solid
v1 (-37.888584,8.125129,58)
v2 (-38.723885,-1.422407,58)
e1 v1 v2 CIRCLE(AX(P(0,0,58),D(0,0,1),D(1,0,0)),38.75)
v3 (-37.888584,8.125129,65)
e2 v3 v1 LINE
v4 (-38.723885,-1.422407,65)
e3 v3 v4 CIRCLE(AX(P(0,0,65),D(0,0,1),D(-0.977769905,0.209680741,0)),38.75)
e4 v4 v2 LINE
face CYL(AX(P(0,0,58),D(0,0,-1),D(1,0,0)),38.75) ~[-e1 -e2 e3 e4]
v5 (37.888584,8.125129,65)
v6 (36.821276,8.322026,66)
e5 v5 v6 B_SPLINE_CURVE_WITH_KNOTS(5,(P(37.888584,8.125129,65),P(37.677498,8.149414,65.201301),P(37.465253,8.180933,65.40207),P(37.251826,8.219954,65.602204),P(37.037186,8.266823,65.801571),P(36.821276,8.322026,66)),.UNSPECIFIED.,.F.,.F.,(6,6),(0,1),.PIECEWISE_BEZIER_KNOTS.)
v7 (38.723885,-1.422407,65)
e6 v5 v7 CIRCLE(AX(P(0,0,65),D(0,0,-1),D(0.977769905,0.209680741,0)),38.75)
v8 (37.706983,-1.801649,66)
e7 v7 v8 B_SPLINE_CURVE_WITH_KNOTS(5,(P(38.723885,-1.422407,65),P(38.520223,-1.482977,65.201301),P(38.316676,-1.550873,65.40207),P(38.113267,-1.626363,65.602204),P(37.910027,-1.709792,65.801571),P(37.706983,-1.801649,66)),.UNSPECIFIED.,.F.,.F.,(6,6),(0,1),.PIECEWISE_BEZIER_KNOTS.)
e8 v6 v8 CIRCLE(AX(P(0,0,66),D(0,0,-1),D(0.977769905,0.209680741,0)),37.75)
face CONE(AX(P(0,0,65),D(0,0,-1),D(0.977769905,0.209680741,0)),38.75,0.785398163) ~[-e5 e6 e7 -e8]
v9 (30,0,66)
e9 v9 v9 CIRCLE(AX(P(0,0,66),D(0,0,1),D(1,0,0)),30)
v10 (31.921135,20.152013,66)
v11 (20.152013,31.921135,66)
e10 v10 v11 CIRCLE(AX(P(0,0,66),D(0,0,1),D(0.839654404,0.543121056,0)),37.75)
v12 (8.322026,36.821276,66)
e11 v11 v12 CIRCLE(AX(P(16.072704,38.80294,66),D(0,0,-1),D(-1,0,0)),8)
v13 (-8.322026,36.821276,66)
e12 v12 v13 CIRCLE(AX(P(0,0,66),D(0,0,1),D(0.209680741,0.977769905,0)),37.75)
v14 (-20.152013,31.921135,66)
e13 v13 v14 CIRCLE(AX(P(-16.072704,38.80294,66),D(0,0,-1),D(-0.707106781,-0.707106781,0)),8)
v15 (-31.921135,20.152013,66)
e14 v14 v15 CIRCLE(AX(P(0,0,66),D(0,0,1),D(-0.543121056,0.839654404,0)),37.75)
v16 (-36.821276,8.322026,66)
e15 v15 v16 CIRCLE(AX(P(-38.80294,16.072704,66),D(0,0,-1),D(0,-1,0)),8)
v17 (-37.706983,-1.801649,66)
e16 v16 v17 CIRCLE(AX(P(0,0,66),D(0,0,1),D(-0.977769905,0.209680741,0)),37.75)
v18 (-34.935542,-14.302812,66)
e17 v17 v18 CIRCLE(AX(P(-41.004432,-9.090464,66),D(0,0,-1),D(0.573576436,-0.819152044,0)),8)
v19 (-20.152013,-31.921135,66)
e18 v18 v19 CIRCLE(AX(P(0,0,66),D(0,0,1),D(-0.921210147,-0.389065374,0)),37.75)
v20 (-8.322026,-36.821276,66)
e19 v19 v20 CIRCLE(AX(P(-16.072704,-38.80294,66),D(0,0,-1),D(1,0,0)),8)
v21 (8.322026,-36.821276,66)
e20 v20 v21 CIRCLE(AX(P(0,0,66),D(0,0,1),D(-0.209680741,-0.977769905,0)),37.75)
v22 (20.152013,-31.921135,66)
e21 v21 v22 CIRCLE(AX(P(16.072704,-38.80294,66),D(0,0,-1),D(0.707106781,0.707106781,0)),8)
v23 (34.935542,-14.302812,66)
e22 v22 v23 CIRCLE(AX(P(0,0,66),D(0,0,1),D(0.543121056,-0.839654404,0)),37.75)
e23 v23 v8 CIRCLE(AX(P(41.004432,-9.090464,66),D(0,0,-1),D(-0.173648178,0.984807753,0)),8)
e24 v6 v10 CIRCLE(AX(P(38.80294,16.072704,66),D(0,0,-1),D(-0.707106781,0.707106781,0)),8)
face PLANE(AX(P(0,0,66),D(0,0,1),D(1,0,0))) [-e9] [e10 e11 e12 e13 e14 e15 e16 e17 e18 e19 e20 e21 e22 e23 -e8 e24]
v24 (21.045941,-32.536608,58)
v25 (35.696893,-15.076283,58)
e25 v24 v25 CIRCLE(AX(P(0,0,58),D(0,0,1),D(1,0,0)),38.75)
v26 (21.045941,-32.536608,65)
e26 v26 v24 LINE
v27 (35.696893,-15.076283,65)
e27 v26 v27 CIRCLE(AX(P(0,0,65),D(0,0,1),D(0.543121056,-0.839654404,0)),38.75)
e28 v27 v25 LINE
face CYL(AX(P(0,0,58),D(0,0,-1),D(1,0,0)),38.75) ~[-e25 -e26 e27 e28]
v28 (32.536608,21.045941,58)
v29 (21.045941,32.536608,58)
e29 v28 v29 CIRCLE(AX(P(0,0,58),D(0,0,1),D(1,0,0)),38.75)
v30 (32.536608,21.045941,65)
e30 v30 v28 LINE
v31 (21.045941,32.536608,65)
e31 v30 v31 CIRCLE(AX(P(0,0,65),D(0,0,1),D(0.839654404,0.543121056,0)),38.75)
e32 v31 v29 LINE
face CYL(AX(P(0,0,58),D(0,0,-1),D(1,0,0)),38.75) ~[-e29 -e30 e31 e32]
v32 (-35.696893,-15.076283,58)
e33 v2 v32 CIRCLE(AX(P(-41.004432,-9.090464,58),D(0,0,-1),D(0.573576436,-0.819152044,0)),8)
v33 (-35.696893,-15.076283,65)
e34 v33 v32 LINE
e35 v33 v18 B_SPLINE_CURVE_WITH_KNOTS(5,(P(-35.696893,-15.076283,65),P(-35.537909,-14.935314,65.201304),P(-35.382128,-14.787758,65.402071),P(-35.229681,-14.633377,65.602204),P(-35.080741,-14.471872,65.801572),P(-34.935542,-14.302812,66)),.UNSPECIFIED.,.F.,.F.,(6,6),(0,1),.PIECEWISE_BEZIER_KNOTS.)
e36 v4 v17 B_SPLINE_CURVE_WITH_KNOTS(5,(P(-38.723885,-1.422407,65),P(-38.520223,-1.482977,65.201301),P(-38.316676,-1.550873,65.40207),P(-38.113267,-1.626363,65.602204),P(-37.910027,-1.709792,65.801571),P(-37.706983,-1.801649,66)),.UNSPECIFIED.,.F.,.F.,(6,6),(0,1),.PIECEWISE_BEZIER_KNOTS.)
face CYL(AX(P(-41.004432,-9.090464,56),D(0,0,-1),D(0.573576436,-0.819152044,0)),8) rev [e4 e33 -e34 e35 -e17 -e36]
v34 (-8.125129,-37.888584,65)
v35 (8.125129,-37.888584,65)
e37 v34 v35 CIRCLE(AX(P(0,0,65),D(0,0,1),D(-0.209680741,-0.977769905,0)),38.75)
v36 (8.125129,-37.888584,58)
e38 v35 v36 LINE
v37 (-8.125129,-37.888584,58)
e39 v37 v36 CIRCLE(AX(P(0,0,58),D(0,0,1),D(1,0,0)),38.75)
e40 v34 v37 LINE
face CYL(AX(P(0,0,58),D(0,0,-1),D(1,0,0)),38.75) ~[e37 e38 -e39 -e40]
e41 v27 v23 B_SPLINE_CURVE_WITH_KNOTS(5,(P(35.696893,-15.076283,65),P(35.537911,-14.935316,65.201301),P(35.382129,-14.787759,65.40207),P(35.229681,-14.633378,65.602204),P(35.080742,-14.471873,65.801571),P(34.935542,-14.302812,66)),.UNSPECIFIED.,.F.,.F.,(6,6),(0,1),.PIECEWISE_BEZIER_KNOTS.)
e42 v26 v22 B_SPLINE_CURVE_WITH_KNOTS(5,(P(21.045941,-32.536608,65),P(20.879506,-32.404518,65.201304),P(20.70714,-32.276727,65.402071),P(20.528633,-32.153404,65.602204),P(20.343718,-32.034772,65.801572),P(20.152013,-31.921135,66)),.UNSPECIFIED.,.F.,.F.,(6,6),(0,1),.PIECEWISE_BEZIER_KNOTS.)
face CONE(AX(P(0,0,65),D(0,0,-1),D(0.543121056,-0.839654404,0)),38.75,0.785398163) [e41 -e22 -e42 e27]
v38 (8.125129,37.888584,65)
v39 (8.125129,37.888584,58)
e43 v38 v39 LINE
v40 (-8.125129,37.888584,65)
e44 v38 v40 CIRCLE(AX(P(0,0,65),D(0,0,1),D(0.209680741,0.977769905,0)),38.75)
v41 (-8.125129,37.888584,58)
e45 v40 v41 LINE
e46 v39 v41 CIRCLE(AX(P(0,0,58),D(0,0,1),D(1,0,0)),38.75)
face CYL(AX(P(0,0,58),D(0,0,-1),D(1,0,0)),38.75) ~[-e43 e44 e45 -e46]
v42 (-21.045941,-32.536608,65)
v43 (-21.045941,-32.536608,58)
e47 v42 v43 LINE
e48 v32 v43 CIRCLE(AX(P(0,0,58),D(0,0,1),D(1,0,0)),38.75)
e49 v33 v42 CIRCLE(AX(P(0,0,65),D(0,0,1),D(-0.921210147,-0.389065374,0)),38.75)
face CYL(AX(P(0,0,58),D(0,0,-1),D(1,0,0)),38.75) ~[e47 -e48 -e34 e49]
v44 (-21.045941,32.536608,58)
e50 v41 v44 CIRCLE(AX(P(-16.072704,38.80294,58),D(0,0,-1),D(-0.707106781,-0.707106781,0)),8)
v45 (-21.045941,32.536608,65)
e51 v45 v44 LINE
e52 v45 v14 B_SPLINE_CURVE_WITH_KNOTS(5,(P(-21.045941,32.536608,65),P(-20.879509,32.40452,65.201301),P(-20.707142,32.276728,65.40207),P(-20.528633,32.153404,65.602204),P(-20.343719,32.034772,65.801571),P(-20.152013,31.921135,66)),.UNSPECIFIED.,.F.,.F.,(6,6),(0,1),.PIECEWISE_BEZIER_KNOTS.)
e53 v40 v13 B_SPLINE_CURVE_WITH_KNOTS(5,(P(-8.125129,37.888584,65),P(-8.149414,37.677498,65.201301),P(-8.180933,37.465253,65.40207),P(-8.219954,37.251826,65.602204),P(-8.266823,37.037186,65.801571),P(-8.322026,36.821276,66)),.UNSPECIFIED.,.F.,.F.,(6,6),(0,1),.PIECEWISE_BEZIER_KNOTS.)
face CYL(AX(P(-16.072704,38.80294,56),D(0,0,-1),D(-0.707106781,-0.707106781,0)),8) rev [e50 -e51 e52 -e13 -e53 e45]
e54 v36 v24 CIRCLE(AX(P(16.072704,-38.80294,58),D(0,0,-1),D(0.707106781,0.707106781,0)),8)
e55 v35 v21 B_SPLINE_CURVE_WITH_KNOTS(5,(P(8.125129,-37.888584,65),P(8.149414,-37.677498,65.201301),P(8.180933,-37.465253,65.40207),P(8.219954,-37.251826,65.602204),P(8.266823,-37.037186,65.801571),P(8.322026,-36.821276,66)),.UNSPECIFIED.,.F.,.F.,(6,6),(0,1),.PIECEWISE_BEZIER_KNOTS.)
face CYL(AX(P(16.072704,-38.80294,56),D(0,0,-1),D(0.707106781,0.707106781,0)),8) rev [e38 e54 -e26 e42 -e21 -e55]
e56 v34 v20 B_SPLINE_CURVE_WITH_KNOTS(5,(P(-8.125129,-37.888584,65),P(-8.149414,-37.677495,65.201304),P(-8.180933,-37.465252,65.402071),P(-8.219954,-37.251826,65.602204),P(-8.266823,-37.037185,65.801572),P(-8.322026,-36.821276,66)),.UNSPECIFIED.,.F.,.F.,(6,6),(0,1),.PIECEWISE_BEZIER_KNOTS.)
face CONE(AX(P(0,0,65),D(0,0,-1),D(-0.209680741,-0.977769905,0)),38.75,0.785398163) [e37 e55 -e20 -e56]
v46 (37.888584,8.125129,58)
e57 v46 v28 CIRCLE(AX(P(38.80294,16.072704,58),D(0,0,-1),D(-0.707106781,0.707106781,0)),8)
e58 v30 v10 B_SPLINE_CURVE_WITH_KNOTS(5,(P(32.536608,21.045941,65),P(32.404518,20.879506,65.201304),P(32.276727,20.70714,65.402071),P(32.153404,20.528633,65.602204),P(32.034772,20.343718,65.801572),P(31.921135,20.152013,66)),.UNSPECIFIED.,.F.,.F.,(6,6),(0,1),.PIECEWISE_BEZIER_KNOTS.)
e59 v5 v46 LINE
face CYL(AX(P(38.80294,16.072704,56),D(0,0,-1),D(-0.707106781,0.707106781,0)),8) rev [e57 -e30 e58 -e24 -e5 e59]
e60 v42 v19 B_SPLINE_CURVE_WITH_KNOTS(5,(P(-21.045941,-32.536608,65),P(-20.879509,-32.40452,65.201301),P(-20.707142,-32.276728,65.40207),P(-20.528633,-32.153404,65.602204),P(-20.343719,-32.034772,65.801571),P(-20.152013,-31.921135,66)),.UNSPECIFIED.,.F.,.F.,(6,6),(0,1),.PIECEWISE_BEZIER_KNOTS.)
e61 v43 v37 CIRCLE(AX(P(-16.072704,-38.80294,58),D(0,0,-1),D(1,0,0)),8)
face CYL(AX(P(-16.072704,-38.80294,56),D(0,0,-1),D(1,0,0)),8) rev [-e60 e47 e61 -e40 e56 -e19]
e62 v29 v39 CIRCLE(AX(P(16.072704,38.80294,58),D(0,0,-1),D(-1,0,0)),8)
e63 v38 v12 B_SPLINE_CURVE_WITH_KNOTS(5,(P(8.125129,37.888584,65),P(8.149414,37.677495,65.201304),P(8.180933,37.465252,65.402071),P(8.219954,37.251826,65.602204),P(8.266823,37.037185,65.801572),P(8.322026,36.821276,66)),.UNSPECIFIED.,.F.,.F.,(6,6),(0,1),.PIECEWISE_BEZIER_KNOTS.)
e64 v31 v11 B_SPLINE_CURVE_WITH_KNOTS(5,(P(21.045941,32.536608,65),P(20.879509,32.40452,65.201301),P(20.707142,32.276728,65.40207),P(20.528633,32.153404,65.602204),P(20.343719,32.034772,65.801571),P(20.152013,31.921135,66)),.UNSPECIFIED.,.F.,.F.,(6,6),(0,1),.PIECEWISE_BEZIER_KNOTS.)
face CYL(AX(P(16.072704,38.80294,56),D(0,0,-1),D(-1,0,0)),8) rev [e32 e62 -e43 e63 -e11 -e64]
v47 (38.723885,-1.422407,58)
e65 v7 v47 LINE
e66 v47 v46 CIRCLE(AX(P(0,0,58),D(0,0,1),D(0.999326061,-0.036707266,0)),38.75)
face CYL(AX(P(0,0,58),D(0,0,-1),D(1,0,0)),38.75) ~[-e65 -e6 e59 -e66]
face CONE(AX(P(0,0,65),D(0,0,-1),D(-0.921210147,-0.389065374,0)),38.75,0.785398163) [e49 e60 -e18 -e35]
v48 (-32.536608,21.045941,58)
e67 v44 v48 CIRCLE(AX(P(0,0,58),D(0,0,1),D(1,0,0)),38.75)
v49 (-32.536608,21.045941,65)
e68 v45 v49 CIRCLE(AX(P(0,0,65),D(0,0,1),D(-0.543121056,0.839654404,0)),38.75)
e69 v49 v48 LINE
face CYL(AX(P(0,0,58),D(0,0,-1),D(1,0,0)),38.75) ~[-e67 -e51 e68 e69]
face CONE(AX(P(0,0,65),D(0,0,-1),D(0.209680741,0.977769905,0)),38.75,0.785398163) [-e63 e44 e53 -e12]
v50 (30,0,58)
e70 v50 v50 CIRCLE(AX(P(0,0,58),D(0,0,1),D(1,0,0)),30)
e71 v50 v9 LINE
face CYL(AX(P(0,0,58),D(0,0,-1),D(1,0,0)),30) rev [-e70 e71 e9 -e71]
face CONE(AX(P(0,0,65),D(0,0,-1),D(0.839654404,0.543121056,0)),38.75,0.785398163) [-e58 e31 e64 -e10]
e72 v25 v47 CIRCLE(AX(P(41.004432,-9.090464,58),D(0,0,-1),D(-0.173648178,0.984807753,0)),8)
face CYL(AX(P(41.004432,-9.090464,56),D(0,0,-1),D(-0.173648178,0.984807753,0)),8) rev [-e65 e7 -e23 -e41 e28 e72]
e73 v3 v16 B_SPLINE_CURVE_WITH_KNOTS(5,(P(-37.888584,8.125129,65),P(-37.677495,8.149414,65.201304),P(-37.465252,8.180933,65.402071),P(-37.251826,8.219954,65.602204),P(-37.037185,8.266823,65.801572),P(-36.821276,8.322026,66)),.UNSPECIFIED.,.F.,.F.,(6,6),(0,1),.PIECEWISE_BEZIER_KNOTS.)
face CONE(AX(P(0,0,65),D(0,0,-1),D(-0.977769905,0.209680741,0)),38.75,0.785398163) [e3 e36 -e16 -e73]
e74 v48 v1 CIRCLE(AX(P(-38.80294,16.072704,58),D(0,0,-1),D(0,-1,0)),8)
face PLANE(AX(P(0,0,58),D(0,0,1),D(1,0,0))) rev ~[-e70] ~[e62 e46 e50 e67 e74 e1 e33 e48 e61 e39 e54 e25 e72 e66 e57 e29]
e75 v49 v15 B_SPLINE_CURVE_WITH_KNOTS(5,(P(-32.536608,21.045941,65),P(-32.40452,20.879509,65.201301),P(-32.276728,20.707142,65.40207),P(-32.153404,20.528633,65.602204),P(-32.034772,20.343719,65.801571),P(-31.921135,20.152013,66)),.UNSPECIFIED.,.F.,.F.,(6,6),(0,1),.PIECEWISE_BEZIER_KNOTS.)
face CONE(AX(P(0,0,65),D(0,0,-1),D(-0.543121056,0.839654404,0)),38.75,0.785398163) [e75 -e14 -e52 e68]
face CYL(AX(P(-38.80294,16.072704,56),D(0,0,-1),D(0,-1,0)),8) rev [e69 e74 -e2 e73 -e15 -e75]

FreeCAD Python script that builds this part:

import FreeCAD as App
import Part
import Sketcher

V = App.Vector


def edges_at(feature, points):
    """Names of the edges that pass closest to the given points."""
    edges = feature.Shape.Edges
    near = lambda p: min(range(len(edges)), key=lambda i: edges[i].distToShape(Part.Vertex(*p))[0])
    return sorted({f"Edge{near(p) + 1}" for p in points})

doc = App.newDocument("Part")
params = doc.addObject("Spreadsheet::Sheet", "Params")
for row, (alias, value) in enumerate([
    ("sketch1_diameter", "16 mm"),
    ("pad1_length", "20 mm"),
    ("sketch2_diameter", "16 mm"),
    ("pad2_length", "20 mm"),
    ("sketch3_diameter", "16 mm"),
    ("pad3_length", "20 mm"),
    ("sketch4_diameter", "16 mm"),
    ("pad4_length", "20 mm"),
    ("sketch5_diameter", "16 mm"),
    ("pad5_length", "20 mm"),
    ("sketch6_diameter", "16 mm"),
    ("pad6_length", "20 mm"),
    ("sketch7_diameter", "16 mm"),
    ("pad7_length", "20 mm"),
    ("sketch8_diameter", "16 mm"),
    ("pad8_length", "20 mm"),
    ("sketch9_diameter", "60 mm"),
    ("sketch9_diameter2", "77.5 mm"),
    ("pad9_length", "8 mm"),
    ("chamfer_size", "1 mm"),
], start=1):
    params.set(f"A{row}", alias)
    params.set(f"B{row}", "=" + value)
    params.setAlias(f"B{row}", alias)

body = doc.addObject("PartDesign::Body", "Body")

# Sketch on XY plane
sketch1 = body.newObject("Sketcher::SketchObject", "Sketch")
sketch1.AttachmentSupport = (doc.getObject("XY_Plane"), [""])
sketch1.MapMode = "FlatFace"
sketch1.addGeometry(Part.Circle(V(0, 0, 0), V(0, 0, 1), 8), False)
sketch1.addConstraint(Sketcher.Constraint("Coincident", 0, 3, -1, 1))
sketch1.addConstraint(Sketcher.Constraint("Diameter", 0, 16.0))
sketch1.setExpression("Constraints[1]", "Params.sketch1_diameter")
pad1 = body.newObject("PartDesign::Pad", "Pad")
pad1.Profile = sketch1
pad1.setExpression("Length", "Params.pad1_length")
body2 = doc.addObject("PartDesign::Body", "Body001")
doc.recompute()

body.Placement = App.Placement(V(41.004432, -9.090464, 0), App.Rotation(V(0, 0, 1), 100))
boolean = body2.newObject("PartDesign::Boolean", "Boolean")
boolean.Type = "Fuse"
boolean.addObjects([body])
body3 = doc.addObject("PartDesign::Body", "Body002")

# Sketch on XY plane
sketch2 = body3.newObject("Sketcher::SketchObject", "Sketch001")
sketch2.AttachmentSupport = (doc.getObject("XY_Plane002"), [""])
sketch2.MapMode = "FlatFace"
sketch2.addGeometry(Part.Circle(V(0, 0, 0), V(0, 0, 1), 8), False)
sketch2.addConstraint(Sketcher.Constraint("Coincident", 0, 3, -1, 1))
sketch2.addConstraint(Sketcher.Constraint("Diameter", 0, 16.0))
sketch2.setExpression("Constraints[1]", "Params.sketch2_diameter")
pad2 = body3.newObject("PartDesign::Pad", "Pad001")
pad2.Profile = sketch2
pad2.setExpression("Length", "Params.pad2_length")
body4 = doc.addObject("PartDesign::Body", "Body003")
doc.recompute()

body3.Placement = App.Placement(V(38.80294, 16.072704, 0), App.Rotation(V(0, 0, 1), 135))
boolean2 = body4.newObject("PartDesign::Boolean", "Boolean001")
boolean2.Type = "Fuse"
boolean2.addObjects([body3])
body5 = doc.addObject("PartDesign::Body", "Body004")

# Sketch on XY plane
sketch3 = body5.newObject("Sketcher::SketchObject", "Sketch002")
sketch3.AttachmentSupport = (doc.getObject("XY_Plane004"), [""])
sketch3.MapMode = "FlatFace"
sketch3.addGeometry(Part.Circle(V(16.072704, 38.80294, 0), V(0, 0, 1), 8), False)
sketch3.addConstraint(Sketcher.Constraint("Diameter", 0, 16.0))
sketch3.addConstraint(Sketcher.Constraint("DistanceY", -1, 1, 0, 3, 38.80294))
sketch3.addConstraint(Sketcher.Constraint("DistanceX", -1, 1, 0, 3, 16.072704))
sketch3.setExpression("Constraints[0]", "Params.sketch3_diameter")
pad3 = body5.newObject("PartDesign::Pad", "Pad002")
pad3.Profile = sketch3
pad3.setExpression("Length", "Params.pad3_length")
body6 = doc.addObject("PartDesign::Body", "Body005")

# Sketch on XY plane
sketch4 = body6.newObject("Sketcher::SketchObject", "Sketch003")
sketch4.AttachmentSupport = (doc.getObject("XY_Plane005"), [""])
sketch4.MapMode = "FlatFace"
sketch4.addGeometry(Part.Circle(V(0, 0, 0), V(0, 0, 1), 8), False)
sketch4.addConstraint(Sketcher.Constraint("Coincident", 0, 3, -1, 1))
sketch4.addConstraint(Sketcher.Constraint("Diameter", 0, 16.0))
sketch4.setExpression("Constraints[1]", "Params.sketch4_diameter")
pad4 = body6.newObject("PartDesign::Pad", "Pad003")
pad4.Profile = sketch4
pad4.setExpression("Length", "Params.pad4_length")
body7 = doc.addObject("PartDesign::Body", "Body006")
doc.recompute()

body6.Placement = App.Placement(V(-16.072704, 38.80294, 0), App.Rotation(V(0, 0, 1), 225))
boolean3 = body7.newObject("PartDesign::Boolean", "Boolean002")
boolean3.Type = "Fuse"
boolean3.addObjects([body6])
body8 = doc.addObject("PartDesign::Body", "Body007")

# Sketch on XY plane
sketch5 = body8.newObject("Sketcher::SketchObject", "Sketch004")
sketch5.AttachmentSupport = (doc.getObject("XY_Plane007"), [""])
sketch5.MapMode = "FlatFace"
sketch5.addGeometry(Part.Circle(V(-38.80294, 16.072704, 0), V(0, 0, 1), 8), False)
sketch5.addConstraint(Sketcher.Constraint("Diameter", 0, 16.0))
sketch5.addConstraint(Sketcher.Constraint("DistanceX", 0, 3, -1, 1, 38.80294))
sketch5.addConstraint(Sketcher.Constraint("DistanceY", -1, 1, 0, 3, 16.072704))
sketch5.setExpression("Constraints[0]", "Params.sketch5_diameter")
pad5 = body8.newObject("PartDesign::Pad", "Pad004")
pad5.Profile = sketch5
pad5.setExpression("Length", "Params.pad5_length")
body9 = doc.addObject("PartDesign::Body", "Body008")

# Sketch on XY plane
sketch6 = body9.newObject("Sketcher::SketchObject", "Sketch005")
sketch6.AttachmentSupport = (doc.getObject("XY_Plane008"), [""])
sketch6.MapMode = "FlatFace"
sketch6.addGeometry(Part.Circle(V(0, 0, 0), V(0, 0, 1), 8), False)
sketch6.addConstraint(Sketcher.Constraint("Coincident", 0, 3, -1, 1))
sketch6.addConstraint(Sketcher.Constraint("Diameter", 0, 16.0))
sketch6.setExpression("Constraints[1]", "Params.sketch6_diameter")
pad6 = body9.newObject("PartDesign::Pad", "Pad005")
pad6.Profile = sketch6
pad6.setExpression("Length", "Params.pad6_length")
body10 = doc.addObject("PartDesign::Body", "Body009")
doc.recompute()

body9.Placement = App.Placement(V(-41.004432, -9.090464, 0), App.Rotation(V(0, 0, -1), 55))
boolean4 = body10.newObject("PartDesign::Boolean", "Boolean003")
boolean4.Type = "Fuse"
boolean4.addObjects([body9])
body11 = doc.addObject("PartDesign::Body", "Body010")

# Sketch on XY plane
sketch7 = body11.newObject("Sketcher::SketchObject", "Sketch006")
sketch7.AttachmentSupport = (doc.getObject("XY_Plane010"), [""])
sketch7.MapMode = "FlatFace"
sketch7.addGeometry(Part.Circle(V(-16.072704, -38.80294, 0), V(0, 0, 1), 8), False)
sketch7.addConstraint(Sketcher.Constraint("Diameter", 0, 16.0))
sketch7.addConstraint(Sketcher.Constraint("DistanceY", 0, 3, -1, 1, 38.80294))
sketch7.addConstraint(Sketcher.Constraint("DistanceX", 0, 3, -1, 1, 16.072704))
sketch7.setExpression("Constraints[0]", "Params.sketch7_diameter")
pad7 = body11.newObject("PartDesign::Pad", "Pad006")
pad7.Profile = sketch7
pad7.setExpression("Length", "Params.pad7_length")
body12 = doc.addObject("PartDesign::Body", "Body011")

# Sketch on XY plane
sketch8 = body12.newObject("Sketcher::SketchObject", "Sketch007")
sketch8.AttachmentSupport = (doc.getObject("XY_Plane011"), [""])
sketch8.MapMode = "FlatFace"
sketch8.addGeometry(Part.Circle(V(0, 0, 0), V(0, 0, 1), 8), False)
sketch8.addConstraint(Sketcher.Constraint("Coincident", 0, 3, -1, 1))
sketch8.addConstraint(Sketcher.Constraint("Diameter", 0, 16.0))
sketch8.setExpression("Constraints[1]", "Params.sketch8_diameter")
pad8 = body12.newObject("PartDesign::Pad", "Pad007")
pad8.Profile = sketch8
pad8.setExpression("Length", "Params.pad8_length")
body13 = doc.addObject("PartDesign::Body", "Body012")
body13.AllowCompound = True
doc.recompute()

body12.Placement = App.Placement(V(16.072704, -38.80294, 0), App.Rotation(V(0, 0, 1), 45))
boolean5 = body13.newObject("PartDesign::Boolean", "Boolean004")
boolean5.Type = "Fuse"
boolean5.addObjects([body12])
doc.recompute()

boolean6 = body13.newObject("PartDesign::Boolean", "Boolean005")
boolean6.Type = "Fuse"
boolean6.addObjects([body2])
doc.recompute()

boolean7 = body13.newObject("PartDesign::Boolean", "Boolean006")
boolean7.Type = "Fuse"
boolean7.addObjects([body4])
doc.recompute()

boolean8 = body13.newObject("PartDesign::Boolean", "Boolean007")
boolean8.Type = "Fuse"
boolean8.addObjects([body5])
doc.recompute()

boolean9 = body13.newObject("PartDesign::Boolean", "Boolean008")
boolean9.Type = "Fuse"
boolean9.addObjects([body7])
doc.recompute()

boolean10 = body13.newObject("PartDesign::Boolean", "Boolean009")
boolean10.Type = "Fuse"
boolean10.addObjects([body8])
doc.recompute()

boolean11 = body13.newObject("PartDesign::Boolean", "Boolean010")
boolean11.Type = "Fuse"
boolean11.addObjects([body10])
doc.recompute()

boolean12 = body13.newObject("PartDesign::Boolean", "Boolean011")
boolean12.Type = "Fuse"
boolean12.addObjects([body11])
body14 = doc.addObject("PartDesign::Body", "Body013")
body14.AllowCompound = True
doc.recompute()

body13.Placement = App.Placement(V(0, 0, 56), App.Rotation(V(0, 0, 1), 0))
boolean13 = body14.newObject("PartDesign::Boolean", "Boolean012")
boolean13.Type = "Fuse"
boolean13.addObjects([body13])
body15 = doc.addObject("PartDesign::Body", "Body014")

# Sketch on XY plane
sketch9 = body15.newObject("Sketcher::SketchObject", "Sketch008")
sketch9.AttachmentSupport = (doc.getObject("XY_Plane014"), [""])
sketch9.MapMode = "FlatFace"
sketch9.AttachmentOffset = App.Placement(V(0, 0, 58), App.Rotation())
sketch9.addGeometry(Part.Circle(V(0, 0, 0), V(0, 0, 1), 38.75), False)
sketch9.addGeometry(Part.Circle(V(0, 0, 0), V(0, 0, 1), 30), False)
sketch9.addConstraint(Sketcher.Constraint("Coincident", 0, 3, -1, 1))
sketch9.addConstraint(Sketcher.Constraint("Coincident", 1, 3, -1, 1))
sketch9.addConstraint(Sketcher.Constraint("Diameter", 1, 60.0))
sketch9.addConstraint(Sketcher.Constraint("Diameter", 0, 77.5))
sketch9.setExpression("Constraints[2]", "Params.sketch9_diameter")
sketch9.setExpression("Constraints[3]", "Params.sketch9_diameter2")
pad9 = body15.newObject("PartDesign::Pad", "Pad008")
pad9.Profile = sketch9
pad9.setExpression("Length", "Params.pad9_length")
doc.recompute()

boolean14 = body15.newObject("PartDesign::Boolean", "Boolean013")
boolean14.Type = "Cut"
boolean14.addObjects([body14])
doc.recompute()

chamfer = body15.newObject("PartDesign::Chamfer", "Chamfer")
chamfer.Base = (boolean14, edges_at(boolean14, [
    (38.603, 3.377, 66),
    (38.603, 3.377, 66),
    (29.684, -24.908, 66),
    (0, -38.75, 66),
    (-29.684, -24.908, 66),
    (-38.603, 3.377, 66),
    (-27.4, 27.4, 66),
    (0, 38.75, 66),
    (27.4, 27.4, 66),
]))
chamfer.setExpression("Size", "Params.chamfer_size")

doc.recompute()
